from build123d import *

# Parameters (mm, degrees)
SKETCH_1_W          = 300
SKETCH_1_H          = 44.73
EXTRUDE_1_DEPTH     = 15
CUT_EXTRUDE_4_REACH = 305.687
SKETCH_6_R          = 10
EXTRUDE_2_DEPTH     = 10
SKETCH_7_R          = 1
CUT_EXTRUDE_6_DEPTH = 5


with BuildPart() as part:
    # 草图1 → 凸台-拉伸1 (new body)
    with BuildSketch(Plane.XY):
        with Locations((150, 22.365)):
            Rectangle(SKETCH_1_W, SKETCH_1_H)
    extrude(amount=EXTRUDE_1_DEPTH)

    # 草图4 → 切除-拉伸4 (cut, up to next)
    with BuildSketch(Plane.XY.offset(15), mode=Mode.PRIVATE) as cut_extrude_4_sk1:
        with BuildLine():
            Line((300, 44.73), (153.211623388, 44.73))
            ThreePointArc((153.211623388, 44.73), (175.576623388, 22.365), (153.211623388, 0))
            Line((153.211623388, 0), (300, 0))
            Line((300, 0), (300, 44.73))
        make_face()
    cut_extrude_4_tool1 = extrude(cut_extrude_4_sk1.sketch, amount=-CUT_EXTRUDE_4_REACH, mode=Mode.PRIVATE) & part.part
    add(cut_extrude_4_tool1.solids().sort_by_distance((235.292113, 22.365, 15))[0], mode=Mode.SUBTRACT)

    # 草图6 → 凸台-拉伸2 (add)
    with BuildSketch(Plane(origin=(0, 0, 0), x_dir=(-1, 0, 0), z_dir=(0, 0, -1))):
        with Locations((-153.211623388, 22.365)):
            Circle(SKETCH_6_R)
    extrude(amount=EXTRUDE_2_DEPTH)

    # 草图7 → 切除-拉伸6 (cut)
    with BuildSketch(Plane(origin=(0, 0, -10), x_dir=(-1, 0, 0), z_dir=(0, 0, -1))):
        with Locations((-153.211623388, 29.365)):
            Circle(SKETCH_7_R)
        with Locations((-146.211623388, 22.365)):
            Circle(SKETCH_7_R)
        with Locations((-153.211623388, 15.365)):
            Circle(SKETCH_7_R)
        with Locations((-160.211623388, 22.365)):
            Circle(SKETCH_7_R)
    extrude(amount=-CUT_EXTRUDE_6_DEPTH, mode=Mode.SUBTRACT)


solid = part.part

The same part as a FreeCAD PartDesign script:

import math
import FreeCAD as App
import Part
import Sketcher
from FreeCAD import Vector

doc = App.newDocument("Part")
params = doc.addObject("Spreadsheet::Sheet", "Params")
for row, (alias, value) in enumerate([
    ("sketch1_width", "300 mm"),
    ("sketch1_height", "44.73 mm"),
    ("pad1_length", "15 mm"),
    ("sketch3_diameter", "20 mm"),
    ("pad2_length", "10 mm"),
    ("sketch4_diameter", "2 mm"),
    ("pocket2_length", "5 mm"),
], start=1):
    params.set(f"A{row}", alias)
    params.set(f"B{row}", "=" + value)
    params.setAlias(f"B{row}", alias)

body = doc.addObject("PartDesign::Body", "Body")

sketch1 = body.newObject("Sketcher::SketchObject", "Sketch")
sketch1.AttachmentSupport = (doc.getObject("XY_Plane"), [""])
sketch1.MapMode = "FlatFace"
sketch1.addGeometry([
    Part.LineSegment(Vector(0, 45, 0), Vector(0, 0, 0)),
    Part.LineSegment(Vector(0, 0, 0), Vector(300, 0, 0)),
    Part.LineSegment(Vector(300, 0, 0), Vector(300, 45, 0)),
    Part.LineSegment(Vector(300, 45, 0), Vector(0, 45, 0)),
], False)
sketch1.addConstraint([
    Sketcher.Constraint("Coincident", 0, 2, 1, 1),
    Sketcher.Constraint("Coincident", 1, 2, 2, 1),
    Sketcher.Constraint("Coincident", 2, 2, 3, 1),
    Sketcher.Constraint("Coincident", 3, 2, 0, 1),
    Sketcher.Constraint("Vertical", 0),
    Sketcher.Constraint("Horizontal", 1),
    Sketcher.Constraint("Vertical", 2),
    Sketcher.Constraint("Horizontal", 3),
    Sketcher.Constraint("Coincident", 0, 2, -1, 1),
    Sketcher.Constraint("DistanceX", 1, 1, 1, 2, 300.0),
    Sketcher.Constraint("DistanceY", 0, 2, 0, 1, 44.73),
])
sketch1.setExpression("Constraints[9]", "Params.sketch1_width")
sketch1.setExpression("Constraints[10]", "Params.sketch1_height")
pad1 = body.newObject("PartDesign::Pad", "Pad")
pad1.Profile = sketch1
pad1.setExpression("Length", "Params.pad1_length")

sketch2 = body.newObject("Sketcher::SketchObject", "Sketch001")
sketch2.AttachmentSupport = (doc.getObject("XY_Plane"), [""])
sketch2.MapMode = "FlatFace"
sketch2.AttachmentOffset = App.Placement(Vector(0, 0, 15), App.Rotation())
sketch2.addGeometry([
    Part.LineSegment(Vector(300, 45, 0), Vector(153, 45, 0)),
    Part.ArcOfCircle(Part.Circle(Vector(153, 22, 0), Vector(0, 0, 1), 22), math.radians(-90), math.radians(90)),
    Part.LineSegment(Vector(153, 0, 0), Vector(300, 0, 0)),
    Part.LineSegment(Vector(300, 0, 0), Vector(300, 45, 0)),
], False)
sketch2.addConstraint([
    Sketcher.Constraint("Tangent", 0, 2, 1, 2),
    Sketcher.Constraint("Tangent", 1, 1, 2, 1),
    Sketcher.Constraint("Coincident", 2, 2, 3, 1),
    Sketcher.Constraint("Coincident", 3, 2, 0, 1),
    Sketcher.Constraint("Horizontal", 0),
    Sketcher.Constraint("Horizontal", 2),
    Sketcher.Constraint("Vertical", 3),
    Sketcher.Constraint("PointOnObject", 1, 1, -1),
    Sketcher.Constraint("DistanceX", -1, 1, 2, 2, 300.0),
    Sketcher.Constraint("Radius", 1, 22.365),
    Sketcher.Constraint("DistanceX", 0, 2, 0, 1, 146.788377),
])
pocket1 = body.newObject("PartDesign::Pocket", "Pocket")
pocket1.Profile = sketch2
pocket1.Type = "UpToFirst"

sketch3 = body.newObject("Sketcher::SketchObject", "Sketch002")
sketch3.AttachmentSupport = (doc.getObject("XY_Plane"), [""])
sketch3.MapMode = "FlatFace"
sketch3.addGeometry(Part.Circle(Vector(153, 22, 0), Vector(0, 0, 1), 10), False)
sketch3.addConstraint([
    Sketcher.Constraint("Diameter", 0, 20.0),
    Sketcher.Constraint("DistanceY", -1, 1, 0, 3, 22.365),
    Sketcher.Constraint("DistanceX", -1, 1, 0, 3, 153.211623),
])
sketch3.setExpression("Constraints[0]", "Params.sketch3_diameter")
pad2 = body.newObject("PartDesign::Pad", "Pad001")
pad2.Profile = sketch3
pad2.setExpression("Length", "Params.pad2_length")
pad2.Reversed = True

sketch4 = body.newObject("Sketcher::SketchObject", "Sketch003")
sketch4.AttachmentSupport = (doc.getObject("XY_Plane"), [""])
sketch4.MapMode = "FlatFace"
sketch4.AttachmentOffset = App.Placement(Vector(0, 0, -10), App.Rotation())
sketch4.addGeometry([
    Part.Circle(Vector(153.2, 29.4, 0), Vector(0, 0, 1), 1),
    Part.Circle(Vector(146.2, 22.4, 0), Vector(0, 0, 1), 1),
    Part.Circle(Vector(153.2, 15.4, 0), Vector(0, 0, 1), 1),
    Part.Circle(Vector(160.2, 22.4, 0), Vector(0, 0, 1), 1),
], False)
sketch4.addConstraint([
    Sketcher.Constraint("Equal", 0, 1),
    Sketcher.Constraint("Equal", 1, 2),
    Sketcher.Constraint("Equal", 2, 3),
    Sketcher.Constraint("Horizontal", 1, 3, 3, 3),
    Sketcher.Constraint("Vertical", 0, 3, 2, 3),
    Sketcher.Constraint("Diameter", 0, 2.0),
    Sketcher.Constraint("DistanceX", 1, 3, 0, 3, 7.0),
    Sketcher.Constraint("DistanceY", 1, 3, 0, 3, 7.0),
    Sketcher.Constraint("DistanceY", 2, 3, 1, 3, 7.0),
    Sketcher.Constraint("DistanceX", 2, 3, 3, 3, 7.0),
    Sketcher.Constraint("DistanceY", -1, 1, 0, 3, 29.365),
    Sketcher.Constraint("DistanceX", -1, 1, 0, 3, 153.211623),
])
sketch4.setExpression("Constraints[5]", "Params.sketch4_diameter")
pocket2 = body.newObject("PartDesign::Pocket", "Pocket001")
pocket2.Profile = sketch4
pocket2.setExpression("Length", "Params.pocket2_length")
pocket2.Reversed = True

doc.recompute()
